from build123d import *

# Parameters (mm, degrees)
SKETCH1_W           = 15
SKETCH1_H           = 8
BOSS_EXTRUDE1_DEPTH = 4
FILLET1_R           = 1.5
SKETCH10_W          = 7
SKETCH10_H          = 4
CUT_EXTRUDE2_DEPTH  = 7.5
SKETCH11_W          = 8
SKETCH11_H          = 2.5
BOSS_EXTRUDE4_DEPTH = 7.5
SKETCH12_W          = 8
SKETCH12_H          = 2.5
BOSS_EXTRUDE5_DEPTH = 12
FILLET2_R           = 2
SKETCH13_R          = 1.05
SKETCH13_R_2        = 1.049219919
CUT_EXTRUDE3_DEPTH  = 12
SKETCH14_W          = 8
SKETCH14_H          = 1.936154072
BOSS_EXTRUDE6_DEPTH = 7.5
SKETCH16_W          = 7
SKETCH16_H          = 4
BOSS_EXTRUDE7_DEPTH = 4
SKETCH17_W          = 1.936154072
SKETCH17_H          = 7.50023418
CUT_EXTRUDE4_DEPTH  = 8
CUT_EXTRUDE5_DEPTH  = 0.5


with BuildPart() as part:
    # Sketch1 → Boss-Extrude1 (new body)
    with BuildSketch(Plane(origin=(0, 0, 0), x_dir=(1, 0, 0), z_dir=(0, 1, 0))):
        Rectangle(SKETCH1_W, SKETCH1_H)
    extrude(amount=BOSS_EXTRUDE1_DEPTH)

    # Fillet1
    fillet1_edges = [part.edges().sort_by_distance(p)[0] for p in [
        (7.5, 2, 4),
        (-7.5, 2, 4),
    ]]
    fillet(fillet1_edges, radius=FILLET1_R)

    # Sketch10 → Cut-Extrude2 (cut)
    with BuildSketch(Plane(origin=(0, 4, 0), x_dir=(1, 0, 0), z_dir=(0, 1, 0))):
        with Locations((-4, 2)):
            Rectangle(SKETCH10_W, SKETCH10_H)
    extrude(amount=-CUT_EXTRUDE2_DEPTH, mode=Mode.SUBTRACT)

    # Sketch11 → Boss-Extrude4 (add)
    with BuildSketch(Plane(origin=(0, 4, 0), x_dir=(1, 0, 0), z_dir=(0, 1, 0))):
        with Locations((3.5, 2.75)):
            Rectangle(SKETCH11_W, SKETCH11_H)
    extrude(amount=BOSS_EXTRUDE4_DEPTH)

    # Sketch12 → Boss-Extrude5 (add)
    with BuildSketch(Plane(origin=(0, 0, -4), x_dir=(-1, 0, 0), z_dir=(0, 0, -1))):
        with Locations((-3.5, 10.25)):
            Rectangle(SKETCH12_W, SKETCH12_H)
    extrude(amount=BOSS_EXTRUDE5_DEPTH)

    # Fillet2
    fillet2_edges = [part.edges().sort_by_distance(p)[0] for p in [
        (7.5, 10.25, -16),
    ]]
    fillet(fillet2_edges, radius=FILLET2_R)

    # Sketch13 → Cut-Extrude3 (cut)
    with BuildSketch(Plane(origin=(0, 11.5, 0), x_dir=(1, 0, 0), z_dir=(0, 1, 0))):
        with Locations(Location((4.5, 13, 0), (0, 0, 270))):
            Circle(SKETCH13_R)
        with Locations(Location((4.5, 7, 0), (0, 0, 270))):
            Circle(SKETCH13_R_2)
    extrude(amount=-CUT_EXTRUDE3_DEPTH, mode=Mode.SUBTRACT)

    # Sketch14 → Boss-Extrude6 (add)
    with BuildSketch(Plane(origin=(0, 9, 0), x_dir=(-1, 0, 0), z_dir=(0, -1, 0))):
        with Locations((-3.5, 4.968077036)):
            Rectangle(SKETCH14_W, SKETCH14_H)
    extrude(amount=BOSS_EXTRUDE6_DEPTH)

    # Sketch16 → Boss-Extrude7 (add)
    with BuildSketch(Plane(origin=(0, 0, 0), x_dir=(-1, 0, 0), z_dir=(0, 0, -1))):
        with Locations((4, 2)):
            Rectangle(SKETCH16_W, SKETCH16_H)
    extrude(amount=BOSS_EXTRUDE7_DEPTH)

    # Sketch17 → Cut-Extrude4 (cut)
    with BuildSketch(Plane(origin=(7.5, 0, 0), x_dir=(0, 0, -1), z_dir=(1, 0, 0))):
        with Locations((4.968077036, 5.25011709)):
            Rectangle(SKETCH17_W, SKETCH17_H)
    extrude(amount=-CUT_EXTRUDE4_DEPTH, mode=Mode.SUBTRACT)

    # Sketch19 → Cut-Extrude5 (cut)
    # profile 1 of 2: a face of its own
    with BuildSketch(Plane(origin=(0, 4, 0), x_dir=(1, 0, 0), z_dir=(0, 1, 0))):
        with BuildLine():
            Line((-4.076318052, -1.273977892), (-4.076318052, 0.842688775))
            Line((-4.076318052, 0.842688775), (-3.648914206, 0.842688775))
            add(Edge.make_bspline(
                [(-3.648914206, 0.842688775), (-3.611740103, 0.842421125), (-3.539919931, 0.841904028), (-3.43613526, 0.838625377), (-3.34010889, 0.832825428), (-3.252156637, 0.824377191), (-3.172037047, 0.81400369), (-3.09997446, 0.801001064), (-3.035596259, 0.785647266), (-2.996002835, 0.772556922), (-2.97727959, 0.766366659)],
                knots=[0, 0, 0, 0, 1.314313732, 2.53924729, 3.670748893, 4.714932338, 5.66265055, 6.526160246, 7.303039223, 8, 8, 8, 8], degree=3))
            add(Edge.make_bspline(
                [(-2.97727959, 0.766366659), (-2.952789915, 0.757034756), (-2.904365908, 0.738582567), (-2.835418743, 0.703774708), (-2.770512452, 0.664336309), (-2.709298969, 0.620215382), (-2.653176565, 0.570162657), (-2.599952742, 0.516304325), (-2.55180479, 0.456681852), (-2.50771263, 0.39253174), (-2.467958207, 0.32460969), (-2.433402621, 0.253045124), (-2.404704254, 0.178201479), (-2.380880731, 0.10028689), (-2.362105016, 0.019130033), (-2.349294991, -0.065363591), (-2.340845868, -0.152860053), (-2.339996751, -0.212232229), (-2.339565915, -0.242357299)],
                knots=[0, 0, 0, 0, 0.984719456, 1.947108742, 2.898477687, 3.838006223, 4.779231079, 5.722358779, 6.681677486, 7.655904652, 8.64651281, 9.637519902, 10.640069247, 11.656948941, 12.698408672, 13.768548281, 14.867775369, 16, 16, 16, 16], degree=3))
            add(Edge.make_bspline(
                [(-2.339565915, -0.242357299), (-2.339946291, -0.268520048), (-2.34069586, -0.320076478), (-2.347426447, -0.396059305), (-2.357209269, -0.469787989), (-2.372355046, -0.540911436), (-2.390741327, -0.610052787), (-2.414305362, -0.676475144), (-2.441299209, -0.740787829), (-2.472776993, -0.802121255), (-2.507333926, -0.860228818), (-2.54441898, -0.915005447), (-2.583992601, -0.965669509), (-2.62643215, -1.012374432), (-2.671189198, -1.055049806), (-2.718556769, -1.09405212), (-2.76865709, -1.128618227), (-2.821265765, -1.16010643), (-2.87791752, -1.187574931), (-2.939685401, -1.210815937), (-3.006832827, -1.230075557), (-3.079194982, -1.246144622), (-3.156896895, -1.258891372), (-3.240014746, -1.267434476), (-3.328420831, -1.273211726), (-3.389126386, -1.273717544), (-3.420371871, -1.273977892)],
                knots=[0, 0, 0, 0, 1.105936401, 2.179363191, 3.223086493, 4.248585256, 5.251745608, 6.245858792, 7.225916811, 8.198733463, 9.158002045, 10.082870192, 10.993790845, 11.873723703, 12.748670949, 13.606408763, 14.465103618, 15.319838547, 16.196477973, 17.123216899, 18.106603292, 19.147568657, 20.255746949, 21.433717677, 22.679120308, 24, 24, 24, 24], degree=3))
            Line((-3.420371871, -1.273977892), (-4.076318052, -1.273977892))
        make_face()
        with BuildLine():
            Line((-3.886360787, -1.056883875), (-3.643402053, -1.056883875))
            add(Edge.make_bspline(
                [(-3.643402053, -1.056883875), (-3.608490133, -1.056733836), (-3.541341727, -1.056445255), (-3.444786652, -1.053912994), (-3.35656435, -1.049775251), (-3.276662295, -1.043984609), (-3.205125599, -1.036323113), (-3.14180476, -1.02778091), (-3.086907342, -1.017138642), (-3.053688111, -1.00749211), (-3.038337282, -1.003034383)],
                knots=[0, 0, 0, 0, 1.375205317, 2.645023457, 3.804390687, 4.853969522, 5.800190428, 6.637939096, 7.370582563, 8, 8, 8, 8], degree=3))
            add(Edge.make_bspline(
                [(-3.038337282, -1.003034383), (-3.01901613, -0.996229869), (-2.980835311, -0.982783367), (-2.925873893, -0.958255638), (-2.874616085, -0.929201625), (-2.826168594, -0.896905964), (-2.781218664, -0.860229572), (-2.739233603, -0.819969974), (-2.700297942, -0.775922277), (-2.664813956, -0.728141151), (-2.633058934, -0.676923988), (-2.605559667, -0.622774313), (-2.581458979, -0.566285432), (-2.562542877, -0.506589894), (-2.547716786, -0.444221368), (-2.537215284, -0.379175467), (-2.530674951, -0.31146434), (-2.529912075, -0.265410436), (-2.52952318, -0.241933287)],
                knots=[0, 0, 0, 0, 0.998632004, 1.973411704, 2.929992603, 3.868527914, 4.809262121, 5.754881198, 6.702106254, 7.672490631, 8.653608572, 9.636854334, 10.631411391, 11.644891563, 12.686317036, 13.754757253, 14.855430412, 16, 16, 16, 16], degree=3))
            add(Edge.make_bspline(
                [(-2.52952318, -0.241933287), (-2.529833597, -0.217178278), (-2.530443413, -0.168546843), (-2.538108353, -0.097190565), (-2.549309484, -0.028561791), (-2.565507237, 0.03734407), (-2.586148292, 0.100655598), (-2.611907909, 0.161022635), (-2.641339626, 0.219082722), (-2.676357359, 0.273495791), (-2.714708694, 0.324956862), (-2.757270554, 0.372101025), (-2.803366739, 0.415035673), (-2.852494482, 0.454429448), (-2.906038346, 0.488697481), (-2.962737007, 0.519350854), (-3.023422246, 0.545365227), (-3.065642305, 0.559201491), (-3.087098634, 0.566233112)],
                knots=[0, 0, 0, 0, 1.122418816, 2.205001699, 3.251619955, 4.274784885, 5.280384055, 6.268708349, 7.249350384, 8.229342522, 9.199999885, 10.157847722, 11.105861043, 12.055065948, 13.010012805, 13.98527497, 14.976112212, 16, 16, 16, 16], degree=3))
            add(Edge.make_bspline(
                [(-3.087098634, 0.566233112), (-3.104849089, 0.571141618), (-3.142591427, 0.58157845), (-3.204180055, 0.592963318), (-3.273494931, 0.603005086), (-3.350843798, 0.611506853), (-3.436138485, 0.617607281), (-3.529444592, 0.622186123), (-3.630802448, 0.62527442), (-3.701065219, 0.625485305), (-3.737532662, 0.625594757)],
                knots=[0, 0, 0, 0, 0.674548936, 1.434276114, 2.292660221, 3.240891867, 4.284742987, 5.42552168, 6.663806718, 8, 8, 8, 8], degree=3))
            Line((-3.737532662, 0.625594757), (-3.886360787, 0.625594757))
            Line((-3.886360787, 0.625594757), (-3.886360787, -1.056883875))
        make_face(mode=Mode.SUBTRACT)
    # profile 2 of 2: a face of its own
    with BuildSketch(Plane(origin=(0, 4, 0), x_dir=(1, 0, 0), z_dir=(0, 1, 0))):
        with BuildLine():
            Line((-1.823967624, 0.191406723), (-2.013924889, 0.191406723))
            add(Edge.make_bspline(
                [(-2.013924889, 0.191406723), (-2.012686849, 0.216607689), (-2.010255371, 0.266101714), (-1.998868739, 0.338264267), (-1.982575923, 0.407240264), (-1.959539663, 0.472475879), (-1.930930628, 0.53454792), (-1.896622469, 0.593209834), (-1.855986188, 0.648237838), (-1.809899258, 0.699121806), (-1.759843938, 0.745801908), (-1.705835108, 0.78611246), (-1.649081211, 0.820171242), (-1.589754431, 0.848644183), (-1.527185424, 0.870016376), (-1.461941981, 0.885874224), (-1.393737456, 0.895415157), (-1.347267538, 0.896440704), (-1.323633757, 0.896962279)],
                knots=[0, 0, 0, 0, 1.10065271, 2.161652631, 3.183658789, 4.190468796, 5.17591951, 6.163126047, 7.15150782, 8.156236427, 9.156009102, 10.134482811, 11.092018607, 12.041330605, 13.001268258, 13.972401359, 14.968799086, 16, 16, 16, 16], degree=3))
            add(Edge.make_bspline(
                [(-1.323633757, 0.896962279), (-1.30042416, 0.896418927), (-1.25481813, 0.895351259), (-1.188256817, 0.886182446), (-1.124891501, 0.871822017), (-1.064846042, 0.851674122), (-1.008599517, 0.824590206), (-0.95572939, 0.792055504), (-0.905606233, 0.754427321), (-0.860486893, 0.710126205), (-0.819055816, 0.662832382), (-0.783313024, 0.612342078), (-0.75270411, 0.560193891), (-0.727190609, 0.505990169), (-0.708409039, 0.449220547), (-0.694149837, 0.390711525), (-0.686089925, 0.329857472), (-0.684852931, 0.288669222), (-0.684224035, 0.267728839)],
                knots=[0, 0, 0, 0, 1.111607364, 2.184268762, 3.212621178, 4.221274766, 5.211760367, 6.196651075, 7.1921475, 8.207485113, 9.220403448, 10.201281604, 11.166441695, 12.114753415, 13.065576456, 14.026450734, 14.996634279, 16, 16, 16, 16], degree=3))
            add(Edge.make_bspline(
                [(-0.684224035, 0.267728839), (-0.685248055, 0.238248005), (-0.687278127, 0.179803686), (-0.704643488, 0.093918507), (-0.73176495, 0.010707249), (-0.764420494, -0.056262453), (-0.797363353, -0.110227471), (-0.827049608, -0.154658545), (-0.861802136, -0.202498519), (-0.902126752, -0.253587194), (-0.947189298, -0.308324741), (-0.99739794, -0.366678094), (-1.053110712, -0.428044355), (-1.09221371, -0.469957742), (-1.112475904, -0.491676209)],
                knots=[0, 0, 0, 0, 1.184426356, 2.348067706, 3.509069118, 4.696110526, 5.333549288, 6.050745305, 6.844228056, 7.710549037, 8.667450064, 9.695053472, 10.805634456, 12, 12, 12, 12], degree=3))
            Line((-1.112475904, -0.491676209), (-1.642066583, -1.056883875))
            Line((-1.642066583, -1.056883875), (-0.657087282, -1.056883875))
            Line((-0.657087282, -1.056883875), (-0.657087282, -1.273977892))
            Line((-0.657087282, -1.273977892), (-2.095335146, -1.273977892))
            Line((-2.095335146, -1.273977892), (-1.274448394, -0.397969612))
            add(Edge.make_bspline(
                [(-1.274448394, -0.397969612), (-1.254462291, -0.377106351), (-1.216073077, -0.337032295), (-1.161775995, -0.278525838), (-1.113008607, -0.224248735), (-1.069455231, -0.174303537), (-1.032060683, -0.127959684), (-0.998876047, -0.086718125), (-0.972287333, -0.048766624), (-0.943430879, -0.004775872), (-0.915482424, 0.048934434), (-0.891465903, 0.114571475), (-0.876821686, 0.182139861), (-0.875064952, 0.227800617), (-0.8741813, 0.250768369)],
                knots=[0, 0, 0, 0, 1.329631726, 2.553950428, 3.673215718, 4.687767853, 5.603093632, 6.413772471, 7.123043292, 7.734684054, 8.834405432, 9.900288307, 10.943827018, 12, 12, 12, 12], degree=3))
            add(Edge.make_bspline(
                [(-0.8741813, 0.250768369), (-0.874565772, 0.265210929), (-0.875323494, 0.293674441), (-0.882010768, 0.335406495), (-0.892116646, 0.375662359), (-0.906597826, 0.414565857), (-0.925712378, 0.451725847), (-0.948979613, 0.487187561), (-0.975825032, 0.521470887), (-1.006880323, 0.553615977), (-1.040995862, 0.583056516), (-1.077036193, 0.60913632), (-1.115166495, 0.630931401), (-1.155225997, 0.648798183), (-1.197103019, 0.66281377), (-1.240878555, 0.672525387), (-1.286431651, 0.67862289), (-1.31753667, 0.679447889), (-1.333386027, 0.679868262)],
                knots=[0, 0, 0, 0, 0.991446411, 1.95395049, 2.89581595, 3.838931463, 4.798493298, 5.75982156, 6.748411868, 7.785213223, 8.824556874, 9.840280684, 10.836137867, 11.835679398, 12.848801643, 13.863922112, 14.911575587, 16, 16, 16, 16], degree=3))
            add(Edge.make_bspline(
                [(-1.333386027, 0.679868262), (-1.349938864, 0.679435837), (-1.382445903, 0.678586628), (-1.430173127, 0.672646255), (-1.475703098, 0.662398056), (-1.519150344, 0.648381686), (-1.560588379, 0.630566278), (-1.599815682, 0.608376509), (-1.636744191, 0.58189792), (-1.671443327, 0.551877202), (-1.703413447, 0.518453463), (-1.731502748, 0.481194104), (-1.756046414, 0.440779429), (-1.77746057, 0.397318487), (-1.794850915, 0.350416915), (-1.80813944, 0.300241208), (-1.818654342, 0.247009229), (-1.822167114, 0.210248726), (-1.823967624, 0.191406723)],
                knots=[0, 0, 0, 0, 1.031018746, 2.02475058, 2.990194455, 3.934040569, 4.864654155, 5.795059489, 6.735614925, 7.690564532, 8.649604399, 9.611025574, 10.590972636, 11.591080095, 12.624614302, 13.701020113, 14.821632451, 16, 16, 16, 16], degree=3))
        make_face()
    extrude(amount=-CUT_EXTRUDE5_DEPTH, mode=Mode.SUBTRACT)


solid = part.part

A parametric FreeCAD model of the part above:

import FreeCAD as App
import Part
import Sketcher
from FreeCAD import Vector


def edges_at(feature, points):
    """Names of the edges that pass closest to the given points."""
    edges = feature.Shape.Edges
    near = lambda p: min(range(len(edges)), key=lambda i: edges[i].distToShape(Part.Vertex(*p))[0])
    return sorted({f"Edge{near(p) + 1}" for p in points})

doc = App.newDocument("Part")
body = doc.addObject("PartDesign::Body", "Body")

sketch1 = body.newObject("Sketcher::SketchObject", "Sketch")
sketch1.AttachmentSupport = (doc.getObject("XZ_Plane"), [""])
sketch1.MapMode = "FlatFace"
sketch1.addGeometry([
    Part.LineSegment(Vector(-7.5, -4, 0), Vector(-7.5, 4, 0)),
    Part.LineSegment(Vector(-7.5, 4, 0), Vector(7.5, 4, 0)),
    Part.LineSegment(Vector(7.5, 4, 0), Vector(7.5, -4, 0)),
    Part.LineSegment(Vector(7.5, -4, 0), Vector(-7.5, -4, 0)),
], False)
sketch1.addConstraint([
    Sketcher.Constraint("Coincident", 0, 2, 1, 1),
    Sketcher.Constraint("Coincident", 1, 2, 2, 1),
    Sketcher.Constraint("Coincident", 2, 2, 3, 1),
    Sketcher.Constraint("Coincident", 3, 2, 0, 1),
    Sketcher.Constraint("Vertical", 0),
    Sketcher.Constraint("Horizontal", 1),
    Sketcher.Constraint("Vertical", 2),
    Sketcher.Constraint("Horizontal", 3),
    Sketcher.Constraint("Symmetric", 0, 2, 2, 2, -1, 1),
    Sketcher.Constraint("DistanceX", 1, 1, 1, 2, 15.0),
    Sketcher.Constraint("DistanceY", 0, 1, 0, 2, 8.0),
])
pad1 = body.newObject("PartDesign::Pad", "Pad")
pad1.Profile = sketch1
pad1.Length = 4
pad1.Reversed = True
doc.recompute()

fillet = body.newObject("PartDesign::Fillet", "Fillet")
fillet.Base = (pad1, edges_at(pad1, [(7.5, 2, 4), (-7.5, 2, 4)]))
fillet.Radius = 1.5

sketch2 = body.newObject("Sketcher::SketchObject", "Sketch001")
sketch2.AttachmentSupport = (doc.getObject("XZ_Plane"), [""])
sketch2.MapMode = "FlatFace"
sketch2.AttachmentOffset = App.Placement(Vector(0, 0, -4), App.Rotation())
sketch2.addGeometry([
    Part.LineSegment(Vector(-7.5, -4, 0), Vector(-7.5, 0, 0)),
    Part.LineSegment(Vector(-7.5, 0, 0), Vector(-0.5, 0, 0)),
    Part.LineSegment(Vector(-0.5, 0, 0), Vector(-0.5, -4, 0)),
    Part.LineSegment(Vector(-0.5, -4, 0), Vector(-7.5, -4, 0)),
], False)
sketch2.addConstraint([
    Sketcher.Constraint("Coincident", 0, 2, 1, 1),
    Sketcher.Constraint("Coincident", 1, 2, 2, 1),
    Sketcher.Constraint("Coincident", 2, 2, 3, 1),
    Sketcher.Constraint("Coincident", 3, 2, 0, 1),
    Sketcher.Constraint("Vertical", 0),
    Sketcher.Constraint("Horizontal", 1),
    Sketcher.Constraint("Vertical", 2),
    Sketcher.Constraint("Horizontal", 3),
    Sketcher.Constraint("PointOnObject", 0, 2, -1),
    Sketcher.Constraint("DistanceX", 1, 1, 1, 2, 7.0),
    Sketcher.Constraint("DistanceY", 0, 1, 0, 2, 4.0),
    Sketcher.Constraint("DistanceX", 0, 2, -1, 1, 7.5),
])
pocket1 = body.newObject("PartDesign::Pocket", "Pocket")
pocket1.Profile = sketch2
pocket1.Length = 7.5
pocket1.Reversed = True

sketch3 = body.newObject("Sketcher::SketchObject", "Sketch002")
sketch3.AttachmentSupport = (doc.getObject("XZ_Plane"), [""])
sketch3.MapMode = "FlatFace"
sketch3.AttachmentOffset = App.Placement(Vector(0, 0, -4), App.Rotation())
sketch3.addGeometry([
    Part.LineSegment(Vector(-0.5, -4, 0), Vector(-0.5, -1.5, 0)),
    Part.LineSegment(Vector(-0.5, -1.5, 0), Vector(7.5, -1.5, 0)),
    Part.LineSegment(Vector(7.5, -1.5, 0), Vector(7.5, -4, 0)),
    Part.LineSegment(Vector(7.5, -4, 0), Vector(-0.5, -4, 0)),
], False)
sketch3.addConstraint([
    Sketcher.Constraint("Coincident", 0, 2, 1, 1),
    Sketcher.Constraint("Coincident", 1, 2, 2, 1),
    Sketcher.Constraint("Coincident", 2, 2, 3, 1),
    Sketcher.Constraint("Coincident", 3, 2, 0, 1),
    Sketcher.Constraint("Vertical", 0),
    Sketcher.Constraint("Horizontal", 1),
    Sketcher.Constraint("Vertical", 2),
    Sketcher.Constraint("Horizontal", 3),
    Sketcher.Constraint("DistanceX", 1, 1, 1, 2, 8.0),
    Sketcher.Constraint("DistanceY", 0, 1, 0, 2, 2.5),
    Sketcher.Constraint("DistanceY", 2, 2, -1, 1, 4.0),
    Sketcher.Constraint("DistanceX", 0, 2, -1, 1, 0.5),
])
pad2 = body.newObject("PartDesign::Pad", "Pad001")
pad2.Profile = sketch3
pad2.Length = 7.5
pad2.Reversed = True

sketch4 = body.newObject("Sketcher::SketchObject", "Sketch003")
sketch4.AttachmentSupport = (doc.getObject("XY_Plane"), [""])
sketch4.MapMode = "FlatFace"
sketch4.AttachmentOffset = App.Placement(Vector(0, 0, -4), App.Rotation())
sketch4.addGeometry([
    Part.LineSegment(Vector(7.5, 11.5, 0), Vector(7.5, 9, 0)),
    Part.LineSegment(Vector(7.5, 9, 0), Vector(-0.5, 9, 0)),
    Part.LineSegment(Vector(-0.5, 9, 0), Vector(-0.5, 11.5, 0)),
    Part.LineSegment(Vector(-0.5, 11.5, 0), Vector(7.5, 11.5, 0)),
], False)
sketch4.addConstraint([
    Sketcher.Constraint("Coincident", 0, 2, 1, 1),
    Sketcher.Constraint("Coincident", 1, 2, 2, 1),
    Sketcher.Constraint("Coincident", 2, 2, 3, 1),
    Sketcher.Constraint("Coincident", 3, 2, 0, 1),
    Sketcher.Constraint("Vertical", 0),
    Sketcher.Constraint("Horizontal", 1),
    Sketcher.Constraint("Vertical", 2),
    Sketcher.Constraint("Horizontal", 3),
    Sketcher.Constraint("DistanceX", 1, 2, 1, 1, 8.0),
    Sketcher.Constraint("DistanceY", 0, 2, 0, 1, 2.5),
    Sketcher.Constraint("DistanceY", -1, 1, 0, 2, 9.0),
    Sketcher.Constraint("DistanceX", -1, 1, 0, 2, 7.5),
])
pad3 = body.newObject("PartDesign::Pad", "Pad002")
pad3.Profile = sketch4
pad3.Length = 12
pad3.Reversed = True
doc.recompute()

fillet2 = body.newObject("PartDesign::Fillet", "Fillet001")
fillet2.Base = (pad3, edges_at(pad3, [(7.5, 10.25, -16)]))
fillet2.Radius = 2

sketch5 = body.newObject("Sketcher::SketchObject", "Sketch004")
sketch5.AttachmentSupport = (doc.getObject("XZ_Plane"), [""])
sketch5.MapMode = "FlatFace"
sketch5.AttachmentOffset = App.Placement(Vector(0, 0, -11.5), App.Rotation())
sketch5.addGeometry([
    Part.Circle(Vector(4.5, -13, 0), Vector(0, 0, 1), 1.05),
    Part.Circle(Vector(4.5, -7, 0), Vector(0, 0, 1), 1.04922),
], False)
sketch5.addConstraint([
    Sketcher.Constraint("Vertical", 0, 3, 1, 3),
    Sketcher.Constraint("Diameter", 0, 2.1),
    Sketcher.Constraint("DistanceY", 0, 3, -1, 1, 13.0),
    Sketcher.Constraint("DistanceY", 1, 3, -1, 1, 7.0),
    Sketcher.Constraint("DistanceX", -1, 1, 0, 3, 4.5),
    Sketcher.Constraint("Diameter", 1, 2.09844),
])
pocket2 = body.newObject("PartDesign::Pocket", "Pocket001")
pocket2.Profile = sketch5
pocket2.Length = 12
pocket2.Reversed = True

sketch6 = body.newObject("Sketcher::SketchObject", "Sketch005")
sketch6.AttachmentSupport = (doc.getObject("XZ_Plane"), [""])
sketch6.MapMode = "FlatFace"
sketch6.AttachmentOffset = App.Placement(Vector(0, 0, -9), App.Rotation())
sketch6.addGeometry([
    Part.LineSegment(Vector(7.5, -5.936154, 0), Vector(7.5, -4, 0)),
    Part.LineSegment(Vector(7.5, -4, 0), Vector(-0.5, -4, 0)),
    Part.LineSegment(Vector(-0.5, -4, 0), Vector(-0.5, -5.936154, 0)),
    Part.LineSegment(Vector(-0.5, -5.936154, 0), Vector(7.5, -5.936154, 0)),
], False)
sketch6.addConstraint([
    Sketcher.Constraint("Coincident", 0, 2, 1, 1),
    Sketcher.Constraint("Coincident", 1, 2, 2, 1),
    Sketcher.Constraint("Coincident", 2, 2, 3, 1),
    Sketcher.Constraint("Coincident", 3, 2, 0, 1),
    Sketcher.Constraint("Vertical", 0),
    Sketcher.Constraint("Horizontal", 1),
    Sketcher.Constraint("Vertical", 2),
    Sketcher.Constraint("Horizontal", 3),
    Sketcher.Constraint("DistanceX", 1, 2, 1, 1, 8.0),
    Sketcher.Constraint("DistanceY", 0, 2, -1, 1, 4.0),
    Sketcher.Constraint("DistanceX", -1, 1, 0, 2, 7.5),
    Sketcher.Constraint("DistanceY", 0, 1, 0, 2, 1.936154),
])
pad4 = body.newObject("PartDesign::Pad", "Pad003")
pad4.Profile = sketch6
pad4.Length = 7.5

sketch7 = body.newObject("Sketcher::SketchObject", "Sketch006")
sketch7.AttachmentSupport = (doc.getObject("XY_Plane"), [""])
sketch7.MapMode = "FlatFace"
sketch7.addGeometry([
    Part.LineSegment(Vector(-0.5, 4, 0), Vector(-0.5, 0, 0)),
    Part.LineSegment(Vector(-0.5, 0, 0), Vector(-7.5, 0, 0)),
    Part.LineSegment(Vector(-7.5, 0, 0), Vector(-7.5, 4, 0)),
    Part.LineSegment(Vector(-7.5, 4, 0), Vector(-0.5, 4, 0)),
], False)
sketch7.addConstraint([
    Sketcher.Constraint("Coincident", 0, 2, 1, 1),
    Sketcher.Constraint("Coincident", 1, 2, 2, 1),
    Sketcher.Constraint("Coincident", 2, 2, 3, 1),
    Sketcher.Constraint("Coincident", 3, 2, 0, 1),
    Sketcher.Constraint("Vertical", 0),
    Sketcher.Constraint("Horizontal", 1),
    Sketcher.Constraint("Vertical", 2),
    Sketcher.Constraint("Horizontal", 3),
    Sketcher.Constraint("PointOnObject", 0, 2, -1),
    Sketcher.Constraint("DistanceX", 1, 2, 1, 1, 7.0),
    Sketcher.Constraint("DistanceY", 0, 2, 0, 1, 4.0),
    Sketcher.Constraint("DistanceX", 0, 2, -1, 1, 0.5),
])
pad5 = body.newObject("PartDesign::Pad", "Pad004")
pad5.Profile = sketch7
pad5.Length = 4
pad5.Reversed = True

sketch8 = body.newObject("Sketcher::SketchObject", "Sketch007")
sketch8.AttachmentSupport = (doc.getObject("YZ_Plane"), [""])
sketch8.MapMode = "FlatFace"
sketch8.AttachmentOffset = App.Placement(Vector(0, 0, 7.5), App.Rotation())
sketch8.addGeometry([
    Part.LineSegment(Vector(9.000234, -4, 0), Vector(1.5, -4, 0)),
    Part.LineSegment(Vector(1.5, -4, 0), Vector(1.5, -5.936154, 0)),
    Part.LineSegment(Vector(1.5, -5.936154, 0), Vector(9.000234, -5.936154, 0)),
    Part.LineSegment(Vector(9.000234, -5.936154, 0), Vector(9.000234, -4, 0)),
], False)
sketch8.addConstraint([
    Sketcher.Constraint("Coincident", 0, 2, 1, 1),
    Sketcher.Constraint("Coincident", 1, 2, 2, 1),
    Sketcher.Constraint("Coincident", 2, 2, 3, 1),
    Sketcher.Constraint("Coincident", 3, 2, 0, 1),
    Sketcher.Constraint("Horizontal", 0),
    Sketcher.Constraint("Vertical", 1),
    Sketcher.Constraint("Horizontal", 2),
    Sketcher.Constraint("Vertical", 3),
    Sketcher.Constraint("DistanceY", 0, 2, -1, 1, 4.0),
    Sketcher.Constraint("DistanceX", -1, 1, 0, 2, 1.5),
    Sketcher.Constraint("DistanceX", 0, 2, 0, 1, 7.500234),
    Sketcher.Constraint("DistanceY", 1, 2, 1, 1, 1.936154),
])
pocket3 = body.newObject("PartDesign::Pocket", "Pocket002")
pocket3.Profile = sketch8
pocket3.Length = 8

sketch9 = body.newObject("Sketcher::SketchObject", "Sketch008")
sketch9.AttachmentSupport = (doc.getObject("XZ_Plane"), [""])
sketch9.MapMode = "FlatFace"
sketch9.AttachmentOffset = App.Placement(Vector(0, 0, -4), App.Rotation())
sketch9.addGeometry([
    Part.LineSegment(Vector(-4.076318, -0.842689, 0), Vector(-4.076318, 1.273978, 0)),
    Part.LineSegment(Vector(-4.076318, 1.273978, 0), Vector(-3.420372, 1.273978, 0)),
    Part.BSplineCurve([Vector(-2.339566, 0.242357, 0), Vector(-2.339946, 0.26852, 0), Vector(-2.340696, 0.320076, 0), Vector(-2.347426, 0.396059, 0), Vector(-2.357209, 0.469788, 0), Vector(-2.372355, 0.540911, 0), Vector(-2.390741, 0.610053, 0), Vector(-2.414305, 0.676475, 0), Vector(-2.441299, 0.740788, 0), Vector(-2.472777, 0.802121, 0), Vector(-2.507334, 0.860229, 0), Vector(-2.544419, 0.915005, 0), Vector(-2.583993, 0.96567, 0), Vector(-2.626432, 1.012374, 0), Vector(-2.671189, 1.05505, 0), Vector(-2.718557, 1.094052, 0), Vector(-2.768657, 1.128618, 0), Vector(-2.821266, 1.160106, 0), Vector(-2.877918, 1.187575, 0), Vector(-2.939685, 1.210816, 0), Vector(-3.006833, 1.230076, 0), Vector(-3.079195, 1.246145, 0), Vector(-3.156897, 1.258891, 0), Vector(-3.240015, 1.267434, 0), Vector(-3.328421, 1.273212, 0), Vector(-3.389126, 1.273718, 0), Vector(-3.420372, 1.273978, 0)], [4, 1, 1, 1, 1, 1, 1, 1, 1, 1, 1, 1, 1, 1, 1, 1, 1, 1, 1, 1, 1, 1, 1, 1, 4], [0, 1.105936401, 2.179363191, 3.223086493, 4.248585256, 5.251745608, 6.245858792, 7.225916811, 8.198733463, 9.158002045, 10.082870192, 10.993790845, 11.873723703, 12.748670949, 13.606408763, 14.465103618, 15.319838547, 16.196477973, 17.123216899, 18.106603292, 19.147568657, 20.255746949, 21.433717677, 22.679120308, 24], False, 3, [1, 1, 1, 1, 1, 1, 1, 1, 1, 1, 1, 1, 1, 1, 1, 1, 1, 1, 1, 1, 1, 1, 1, 1, 1, 1, 1], False),
    Part.BSplineCurve([Vector(-2.97728, -0.766367, 0), Vector(-2.95279, -0.757035, 0), Vector(-2.904366, -0.738583, 0), Vector(-2.835419, -0.703775, 0), Vector(-2.770512, -0.664336, 0), Vector(-2.709299, -0.620215, 0), Vector(-2.653177, -0.570163, 0), Vector(-2.599953, -0.516304, 0), Vector(-2.551805, -0.456682, 0), Vector(-2.507713, -0.392532, 0), Vector(-2.467958, -0.32461, 0), Vector(-2.433403, -0.253045, 0), Vector(-2.404704, -0.178201, 0), Vector(-2.380881, -0.100287, 0), Vector(-2.362105, -0.01913, 0), Vector(-2.349295, 0.065364, 0), Vector(-2.340846, 0.15286, 0), Vector(-2.339997, 0.212232, 0), Vector(-2.339566, 0.242357, 0)], [4, 1, 1, 1, 1, 1, 1, 1, 1, 1, 1, 1, 1, 1, 1, 1, 4], [0, 0.984719456, 1.947108742, 2.898477687, 3.838006223, 4.779231079, 5.722358779, 6.681677486, 7.655904652, 8.64651281, 9.637519902, 10.640069247, 11.656948941, 12.698408672, 13.768548281, 14.867775369, 16], False, 3, [1, 1, 1, 1, 1, 1, 1, 1, 1, 1, 1, 1, 1, 1, 1, 1, 1, 1, 1], False),
    Part.BSplineCurve([Vector(-3.648914, -0.842689, 0), Vector(-3.61174, -0.842421, 0), Vector(-3.53992, -0.841904, 0), Vector(-3.436135, -0.838625, 0), Vector(-3.340109, -0.832825, 0), Vector(-3.252157, -0.824377, 0), Vector(-3.172037, -0.814004, 0), Vector(-3.099974, -0.801001, 0), Vector(-3.035596, -0.785647, 0), Vector(-2.996003, -0.772557, 0), Vector(-2.97728, -0.766367, 0)], [4, 1, 1, 1, 1, 1, 1, 1, 4], [0, 1.314313732, 2.53924729, 3.670748893, 4.714932338, 5.66265055, 6.526160246, 7.303039223, 8], False, 3, [1, 1, 1, 1, 1, 1, 1, 1, 1, 1, 1], False),
    Part.LineSegment(Vector(-3.648914, -0.842689, 0), Vector(-4.076318, -0.842689, 0)),
    Part.LineSegment(Vector(-3.886361, 1.056884, 0), Vector(-3.886361, -0.625595, 0)),
    Part.LineSegment(Vector(-3.886361, -0.625595, 0), Vector(-3.737533, -0.625595, 0)),
    Part.BSplineCurve([Vector(-3.087099, -0.566233, 0), Vector(-3.104849, -0.571142, 0), Vector(-3.142591, -0.581578, 0), Vector(-3.20418, -0.592963, 0), Vector(-3.273495, -0.603005, 0), Vector(-3.350844, -0.611507, 0), Vector(-3.436138, -0.617607, 0), Vector(-3.529445, -0.622186, 0), Vector(-3.630802, -0.625274, 0), Vector(-3.701065, -0.625485, 0), Vector(-3.737533, -0.625595, 0)], [4, 1, 1, 1, 1, 1, 1, 1, 4], [0, 0.674548936, 1.434276114, 2.292660221, 3.240891867, 4.284742987, 5.42552168, 6.663806718, 8], False, 3, [1, 1, 1, 1, 1, 1, 1, 1, 1, 1, 1], False),
    Part.BSplineCurve([Vector(-2.529523, 0.241933, 0), Vector(-2.529834, 0.217178, 0), Vector(-2.530443, 0.168547, 0), Vector(-2.538108, 0.097191, 0), Vector(-2.549309, 0.028562, 0), Vector(-2.565507, -0.037344, 0), Vector(-2.586148, -0.100656, 0), Vector(-2.611908, -0.161023, 0), Vector(-2.64134, -0.219083, 0), Vector(-2.676357, -0.273496, 0), Vector(-2.714709, -0.324957, 0), Vector(-2.757271, -0.372101, 0), Vector(-2.803367, -0.415036, 0), Vector(-2.852494, -0.454429, 0), Vector(-2.906038, -0.488697, 0), Vector(-2.962737, -0.519351, 0), Vector(-3.023422, -0.545365, 0), Vector(-3.065642, -0.559201, 0), Vector(-3.087099, -0.566233, 0)], [4, 1, 1, 1, 1, 1, 1, 1, 1, 1, 1, 1, 1, 1, 1, 1, 4], [0, 1.122418816, 2.205001699, 3.251619955, 4.274784885, 5.280384055, 6.268708349, 7.249350384, 8.229342522, 9.199999885, 10.157847722, 11.105861043, 12.055065948, 13.010012805, 13.98527497, 14.976112212, 16], False, 3, [1, 1, 1, 1, 1, 1, 1, 1, 1, 1, 1, 1, 1, 1, 1, 1, 1, 1, 1], False),
    Part.BSplineCurve([Vector(-3.038337, 1.003034, 0), Vector(-3.019016, 0.99623, 0), Vector(-2.980835, 0.982783, 0), Vector(-2.925874, 0.958256, 0), Vector(-2.874616, 0.929202, 0), Vector(-2.826169, 0.896906, 0), Vector(-2.781219, 0.86023, 0), Vector(-2.739234, 0.81997, 0), Vector(-2.700298, 0.775922, 0), Vector(-2.664814, 0.728141, 0), Vector(-2.633059, 0.676924, 0), Vector(-2.60556, 0.622774, 0), Vector(-2.581459, 0.566285, 0), Vector(-2.562543, 0.50659, 0), Vector(-2.547717, 0.444221, 0), Vector(-2.537215, 0.379175, 0), Vector(-2.530675, 0.311464, 0), Vector(-2.529912, 0.26541, 0), Vector(-2.529523, 0.241933, 0)], [4, 1, 1, 1, 1, 1, 1, 1, 1, 1, 1, 1, 1, 1, 1, 1, 4], [0, 0.998632004, 1.973411704, 2.929992603, 3.868527914, 4.809262121, 5.754881198, 6.702106254, 7.672490631, 8.653608572, 9.636854334, 10.631411391, 11.644891563, 12.686317036, 13.754757253, 14.855430412, 16], False, 3, [1, 1, 1, 1, 1, 1, 1, 1, 1, 1, 1, 1, 1, 1, 1, 1, 1, 1, 1], False),
    Part.BSplineCurve([Vector(-3.643402, 1.056884, 0), Vector(-3.60849, 1.056734, 0), Vector(-3.541342, 1.056445, 0), Vector(-3.444787, 1.053913, 0), Vector(-3.356564, 1.049775, 0), Vector(-3.276662, 1.043985, 0), Vector(-3.205126, 1.036323, 0), Vector(-3.141805, 1.027781, 0), Vector(-3.086907, 1.017139, 0), Vector(-3.053688, 1.007492, 0), Vector(-3.038337, 1.003034, 0)], [4, 1, 1, 1, 1, 1, 1, 1, 4], [0, 1.375205317, 2.645023457, 3.804390687, 4.853969522, 5.800190428, 6.637939096, 7.370582563, 8], False, 3, [1, 1, 1, 1, 1, 1, 1, 1, 1, 1, 1], False),
    Part.LineSegment(Vector(-3.643402, 1.056884, 0), Vector(-3.886361, 1.056884, 0)),
    Part.LineSegment(Vector(-2.013925, -0.191407, 0), Vector(-1.823968, -0.191407, 0)),
    Part.BSplineCurve([Vector(-1.333386, -0.679868, 0), Vector(-1.349939, -0.679436, 0), Vector(-1.382446, -0.678587, 0), Vector(-1.430173, -0.672646, 0), Vector(-1.475703, -0.662398, 0), Vector(-1.51915, -0.648382, 0), Vector(-1.560588, -0.630566, 0), Vector(-1.599816, -0.608377, 0), Vector(-1.636744, -0.581898, 0), Vector(-1.671443, -0.551877, 0), Vector(-1.703413, -0.518453, 0), Vector(-1.731503, -0.481194, 0), Vector(-1.756046, -0.440779, 0), Vector(-1.777461, -0.397318, 0), Vector(-1.794851, -0.350417, 0), Vector(-1.808139, -0.300241, 0), Vector(-1.818654, -0.247009, 0), Vector(-1.822167, -0.210249, 0), Vector(-1.823968, -0.191407, 0)], [4, 1, 1, 1, 1, 1, 1, 1, 1, 1, 1, 1, 1, 1, 1, 1, 4], [0, 1.031018746, 2.02475058, 2.990194455, 3.934040569, 4.864654155, 5.795059489, 6.735614925, 7.690564532, 8.649604399, 9.611025574, 10.590972636, 11.591080095, 12.624614302, 13.701020113, 14.821632451, 16], False, 3, [1, 1, 1, 1, 1, 1, 1, 1, 1, 1, 1, 1, 1, 1, 1, 1, 1, 1, 1], False),
    Part.BSplineCurve([Vector(-0.874181, -0.250768, 0), Vector(-0.874566, -0.265211, 0), Vector(-0.875323, -0.293674, 0), Vector(-0.882011, -0.335406, 0), Vector(-0.892117, -0.375662, 0), Vector(-0.906598, -0.414566, 0), Vector(-0.925712, -0.451726, 0), Vector(-0.94898, -0.487188, 0), Vector(-0.975825, -0.521471, 0), Vector(-1.00688, -0.553616, 0), Vector(-1.040996, -0.583057, 0), Vector(-1.077036, -0.609136, 0), Vector(-1.115166, -0.630931, 0), Vector(-1.155226, -0.648798, 0), Vector(-1.197103, -0.662814, 0), Vector(-1.240879, -0.672525, 0), Vector(-1.286432, -0.678623, 0), Vector(-1.317537, -0.679448, 0), Vector(-1.333386, -0.679868, 0)], [4, 1, 1, 1, 1, 1, 1, 1, 1, 1, 1, 1, 1, 1, 1, 1, 4], [0, 0.991446411, 1.95395049, 2.89581595, 3.838931463, 4.798493298, 5.75982156, 6.748411868, 7.785213223, 8.824556874, 9.840280684, 10.836137867, 11.835679398, 12.848801643, 13.863922112, 14.911575587, 16], False, 3, [1, 1, 1, 1, 1, 1, 1, 1, 1, 1, 1, 1, 1, 1, 1, 1, 1, 1, 1], False),
    Part.BSplineCurve([Vector(-1.274448, 0.39797, 0), Vector(-1.254462, 0.377106, 0), Vector(-1.216073, 0.337032, 0), Vector(-1.161776, 0.278526, 0), Vector(-1.113009, 0.224249, 0), Vector(-1.069455, 0.174304, 0), Vector(-1.032061, 0.12796, 0), Vector(-0.998876, 0.086718, 0), Vector(-0.972287, 0.048767, 0), Vector(-0.943431, 0.004776, 0), Vector(-0.915482, -0.048934, 0), Vector(-0.891466, -0.114571, 0), Vector(-0.876822, -0.18214, 0), Vector(-0.875065, -0.227801, 0), Vector(-0.874181, -0.250768, 0)], [4, 1, 1, 1, 1, 1, 1, 1, 1, 1, 1, 1, 4], [0, 1.329631726, 2.553950428, 3.673215718, 4.687767853, 5.603093632, 6.413772471, 7.123043292, 7.734684054, 8.834405432, 9.900288307, 10.943827018, 12], False, 3, [1, 1, 1, 1, 1, 1, 1, 1, 1, 1, 1, 1, 1, 1, 1], False),
    Part.LineSegment(Vector(-1.274448, 0.39797, 0), Vector(-2.095335, 1.273978, 0)),
    Part.LineSegment(Vector(-2.095335, 1.273978, 0), Vector(-0.657087, 1.273978, 0)),
    Part.LineSegment(Vector(-0.657087, 1.273978, 0), Vector(-0.657087, 1.056884, 0)),
    Part.LineSegment(Vector(-0.657087, 1.056884, 0), Vector(-1.642067, 1.056884, 0)),
    Part.LineSegment(Vector(-1.642067, 1.056884, 0), Vector(-1.112476, 0.491676, 0)),
    Part.BSplineCurve([Vector(-0.684224, -0.267729, 0), Vector(-0.685248, -0.238248, 0), Vector(-0.687278, -0.179804, 0), Vector(-0.704643, -0.093919, 0), Vector(-0.731765, -0.010707, 0), Vector(-0.76442, 0.056262, 0), Vector(-0.797363, 0.110227, 0), Vector(-0.82705, 0.154659, 0), Vector(-0.861802, 0.202499, 0), Vector(-0.902127, 0.253587, 0), Vector(-0.947189, 0.308325, 0), Vector(-0.997398, 0.366678, 0), Vector(-1.053111, 0.428044, 0), Vector(-1.092214, 0.469958, 0), Vector(-1.112476, 0.491676, 0)], [4, 1, 1, 1, 1, 1, 1, 1, 1, 1, 1, 1, 4], [0, 1.184426356, 2.348067706, 3.509069118, 4.696110526, 5.333549288, 6.050745305, 6.844228056, 7.710549037, 8.667450064, 9.695053472, 10.805634456, 12], False, 3, [1, 1, 1, 1, 1, 1, 1, 1, 1, 1, 1, 1, 1, 1, 1], False),
    Part.BSplineCurve([Vector(-1.323634, -0.896962, 0), Vector(-1.300424, -0.896419, 0), Vector(-1.254818, -0.895351, 0), Vector(-1.188257, -0.886182, 0), Vector(-1.124892, -0.871822, 0), Vector(-1.064846, -0.851674, 0), Vector(-1.0086, -0.82459, 0), Vector(-0.955729, -0.792056, 0), Vector(-0.905606, -0.754427, 0), Vector(-0.860487, -0.710126, 0), Vector(-0.819056, -0.662832, 0), Vector(-0.783313, -0.612342, 0), Vector(-0.752704, -0.560194, 0), Vector(-0.727191, -0.50599, 0), Vector(-0.708409, -0.449221, 0), Vector(-0.69415, -0.390712, 0), Vector(-0.68609, -0.329857, 0), Vector(-0.684853, -0.288669, 0), Vector(-0.684224, -0.267729, 0)], [4, 1, 1, 1, 1, 1, 1, 1, 1, 1, 1, 1, 1, 1, 1, 1, 4], [0, 1.111607364, 2.184268762, 3.212621178, 4.221274766, 5.211760367, 6.196651075, 7.1921475, 8.207485113, 9.220403448, 10.201281604, 11.166441695, 12.114753415, 13.065576456, 14.026450734, 14.996634279, 16], False, 3, [1, 1, 1, 1, 1, 1, 1, 1, 1, 1, 1, 1, 1, 1, 1, 1, 1, 1, 1], False),
    Part.BSplineCurve([Vector(-2.013925, -0.191407, 0), Vector(-2.012687, -0.216608, 0), Vector(-2.010255, -0.266102, 0), Vector(-1.998869, -0.338264, 0), Vector(-1.982576, -0.40724, 0), Vector(-1.95954, -0.472476, 0), Vector(-1.930931, -0.534548, 0), Vector(-1.896622, -0.59321, 0), Vector(-1.855986, -0.648238, 0), Vector(-1.809899, -0.699122, 0), Vector(-1.759844, -0.745802, 0), Vector(-1.705835, -0.786112, 0), Vector(-1.649081, -0.820171, 0), Vector(-1.589754, -0.848644, 0), Vector(-1.527185, -0.870016, 0), Vector(-1.461942, -0.885874, 0), Vector(-1.393737, -0.895415, 0), Vector(-1.347268, -0.896441, 0), Vector(-1.323634, -0.896962, 0)], [4, 1, 1, 1, 1, 1, 1, 1, 1, 1, 1, 1, 1, 1, 1, 1, 4], [0, 1.10065271, 2.161652631, 3.183658789, 4.190468796, 5.17591951, 6.163126047, 7.15150782, 8.156236427, 9.156009102, 10.134482811, 11.092018607, 12.041330605, 13.001268258, 13.972401359, 14.968799086, 16], False, 3, [1, 1, 1, 1, 1, 1, 1, 1, 1, 1, 1, 1, 1, 1, 1, 1, 1, 1, 1], False),
], False)
sketch9.addConstraint([
    Sketcher.Constraint("Block", 2),
    Sketcher.Constraint("Block", 3),
    Sketcher.Constraint("Block", 4),
    Sketcher.Constraint("Block", 8),
    Sketcher.Constraint("Block", 9),
    Sketcher.Constraint("Block", 10),
    Sketcher.Constraint("Block", 11),
    Sketcher.Constraint("Block", 14),
    Sketcher.Constraint("Block", 15),
    Sketcher.Constraint("Block", 16),
    Sketcher.Constraint("Block", 22),
    Sketcher.Constraint("Block", 23),
    Sketcher.Constraint("Block", 24),
    Sketcher.Constraint("Coincident", 0, 2, 1, 1),
    Sketcher.Constraint("Coincident", 1, 2, 2, 2),
    Sketcher.Constraint("Coincident", 4, 1, 5, 1),
    Sketcher.Constraint("Coincident", 5, 2, 0, 1),
    Sketcher.Constraint("Coincident", 6, 2, 7, 1),
    Sketcher.Constraint("Coincident", 7, 2, 8, 2),
    Sketcher.Constraint("Coincident", 11, 1, 12, 1),
    Sketcher.Constraint("Coincident", 12, 2, 6, 1),
    Sketcher.Constraint("Coincident", 13, 2, 14, 2),
    Sketcher.Constraint("Coincident", 16, 1, 17, 1),
    Sketcher.Constraint("Coincident", 17, 2, 18, 1),
    Sketcher.Constraint("Coincident", 18, 2, 19, 1),
    Sketcher.Constraint("Coincident", 19, 2, 20, 1),
    Sketcher.Constraint("Coincident", 20, 2, 21, 1),
    Sketcher.Constraint("Coincident", 21, 2, 22, 2),
    Sketcher.Constraint("Coincident", 24, 1, 13, 1),
    Sketcher.Constraint("Vertical", 0),
    Sketcher.Constraint("Horizontal", 1),
    Sketcher.Constraint("Horizontal", 5),
    Sketcher.Constraint("Vertical", 6),
    Sketcher.Constraint("Horizontal", 7),
    Sketcher.Constraint("Horizontal", 12),
    Sketcher.Constraint("Horizontal", 18),
    Sketcher.Constraint("Vertical", 19),
    Sketcher.Constraint("Horizontal", 20),
    Sketcher.Constraint("Horizontal", 1, 2, 17, 2),
    Sketcher.Constraint("Horizontal", 12, 2, 19, 2),
    Sketcher.Constraint("DistanceX", 7, 1, 7, 2, 0.148828),
    Sketcher.Constraint("DistanceX", 20, 2, 20, 1, 0.984979),
    Sketcher.Constraint("DistanceX", 13, 2, 20, 2, 0.181901),
    Sketcher.Constraint("Distance", 17, 1.200519),
    Sketcher.Constraint("DistanceX", 1, 1, 1, 2, 0.655946),
])
pocket4 = body.newObject("PartDesign::Pocket", "Pocket003")
pocket4.Profile = sketch9
pocket4.Length = 0.5
pocket4.Reversed = True

doc.recompute()
